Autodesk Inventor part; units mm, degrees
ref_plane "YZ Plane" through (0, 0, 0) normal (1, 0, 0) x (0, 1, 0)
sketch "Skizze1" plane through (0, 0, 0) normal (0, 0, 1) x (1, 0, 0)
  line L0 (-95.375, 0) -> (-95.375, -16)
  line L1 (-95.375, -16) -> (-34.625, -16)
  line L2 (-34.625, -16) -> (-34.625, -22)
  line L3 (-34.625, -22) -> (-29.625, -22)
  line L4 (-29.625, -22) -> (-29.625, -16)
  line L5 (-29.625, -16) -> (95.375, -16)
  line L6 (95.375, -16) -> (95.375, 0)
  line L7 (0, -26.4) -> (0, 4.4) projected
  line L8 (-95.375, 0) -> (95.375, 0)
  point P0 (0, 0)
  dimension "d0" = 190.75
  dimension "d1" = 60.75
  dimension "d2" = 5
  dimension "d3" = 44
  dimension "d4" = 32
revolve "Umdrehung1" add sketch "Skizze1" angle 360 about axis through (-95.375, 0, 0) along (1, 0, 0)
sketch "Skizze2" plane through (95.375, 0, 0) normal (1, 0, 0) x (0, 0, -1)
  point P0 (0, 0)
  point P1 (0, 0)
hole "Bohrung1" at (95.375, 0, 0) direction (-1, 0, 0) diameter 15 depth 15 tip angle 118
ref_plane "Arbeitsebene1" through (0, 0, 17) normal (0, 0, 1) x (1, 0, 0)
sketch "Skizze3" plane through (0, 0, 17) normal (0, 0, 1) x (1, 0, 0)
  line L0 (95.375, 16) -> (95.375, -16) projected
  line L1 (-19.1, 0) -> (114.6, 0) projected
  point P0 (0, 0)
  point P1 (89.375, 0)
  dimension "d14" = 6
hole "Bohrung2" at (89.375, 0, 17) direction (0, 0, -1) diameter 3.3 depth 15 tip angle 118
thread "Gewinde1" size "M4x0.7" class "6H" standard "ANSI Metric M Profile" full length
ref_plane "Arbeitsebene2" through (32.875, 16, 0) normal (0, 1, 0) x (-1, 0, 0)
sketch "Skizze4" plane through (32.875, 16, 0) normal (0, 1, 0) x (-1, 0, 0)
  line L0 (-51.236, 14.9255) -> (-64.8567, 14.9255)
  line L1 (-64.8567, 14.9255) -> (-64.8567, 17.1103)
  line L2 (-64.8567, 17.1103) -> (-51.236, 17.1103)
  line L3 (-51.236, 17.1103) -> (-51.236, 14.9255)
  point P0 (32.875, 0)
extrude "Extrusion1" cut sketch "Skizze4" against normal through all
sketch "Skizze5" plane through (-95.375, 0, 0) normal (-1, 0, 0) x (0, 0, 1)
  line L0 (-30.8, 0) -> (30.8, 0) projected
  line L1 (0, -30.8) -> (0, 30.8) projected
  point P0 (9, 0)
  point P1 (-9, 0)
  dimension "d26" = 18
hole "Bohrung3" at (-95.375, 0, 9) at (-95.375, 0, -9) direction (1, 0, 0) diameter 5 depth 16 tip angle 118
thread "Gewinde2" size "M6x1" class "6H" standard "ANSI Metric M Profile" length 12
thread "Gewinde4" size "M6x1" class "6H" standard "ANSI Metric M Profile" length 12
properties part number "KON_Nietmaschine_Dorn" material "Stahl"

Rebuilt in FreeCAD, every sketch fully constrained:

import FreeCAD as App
import Part
import Sketcher

V = App.Vector
Q = App.Units.Quantity


def add_polygon(sketch, points):
    """Adds a closed chain of lines whose ends are joined by coincident constraints."""
    first, n = sketch.GeometryCount, len(points)
    for a, b in zip(points, points[1:] + points[:1]):
        sketch.addGeometry(Part.LineSegment(App.Vector(*a, 0), App.Vector(*b, 0)), False)
    for i in range(n):
        sketch.addConstraint(Sketcher.Constraint("Coincident", first + i, 2, first + (i + 1) % n, 1))

doc = App.newDocument("Part")
body = doc.addObject("PartDesign::Body", "Body")

# Sketch on XY plane
sketch1 = body.newObject("Sketcher::SketchObject", "Sketch")
sketch1.AttachmentSupport = (doc.getObject("XY_Plane"), [""])
sketch1.MapMode = "FlatFace"
add_polygon(sketch1, [(-95, 0), (-95, -16), (-35, -16), (-35, -22), (-30, -22), (-30, -16), (95, -16), (95, 0)])  # lines 0-7
sketch1.addConstraint(Sketcher.Constraint("Vertical", 0))
sketch1.addConstraint(Sketcher.Constraint("Horizontal", 1))
sketch1.addConstraint(Sketcher.Constraint("Vertical", 2))
sketch1.addConstraint(Sketcher.Constraint("Horizontal", 3))
sketch1.addConstraint(Sketcher.Constraint("Vertical", 4))
sketch1.addConstraint(Sketcher.Constraint("Horizontal", 5))
sketch1.addConstraint(Sketcher.Constraint("Vertical", 6))
sketch1.addConstraint(Sketcher.Constraint("Horizontal", 7))
sketch1.addConstraint(Sketcher.Constraint("Symmetric", 6, 2, 7, 2, -1, 1))
sketch1.addConstraint(Sketcher.Constraint("Horizontal", 1, 2, 4, 2))
sketch1.addConstraint(Sketcher.Constraint("DistanceX", 3, 1, 3, 2, Q("5 mm")))
sketch1.addConstraint(Sketcher.Constraint("DistanceX", 1, 1, 1, 2, Q("60.75 mm")))
sketch1.addConstraint(Sketcher.Constraint("DistanceX", 7, 2, 7, 1, Q("190.75 mm")))
sketch1.addConstraint(Sketcher.Constraint("DistanceY", 0, 2, 0, 1, Q("16 mm")))
sketch1.addConstraint(Sketcher.Constraint("DistanceY", 2, 2, 2, 1, Q("6 mm")))
revolution = body.newObject("PartDesign::Revolution", "Revolution")
revolution.Profile = sketch1
revolution.ReferenceAxis = (sketch1, ["H_Axis"])
revolution.Angle = 360

# Sketch on YZ plane
sketch2 = body.newObject("Sketcher::SketchObject", "Sketch001")
sketch2.AttachmentSupport = (doc.getObject("YZ_Plane"), [""])
sketch2.MapMode = "FlatFace"
sketch2.AttachmentOffset = App.Placement(V(0, 0, 95.375), App.Rotation())
sketch2.addGeometry(Part.Circle(V(0, 0, 0), V(0, 0, 1), 8), False)
sketch2.addConstraint(Sketcher.Constraint("Coincident", 0, 3, -1, 1))
sketch2.addConstraint(Sketcher.Constraint("Diameter", 0, Q("15 mm")))
doc.recompute()
hole = body.newObject("PartDesign::Hole", "Hole")
hole.Profile = sketch2
hole.ThreadType = "None"
hole.Diameter = 15
hole.DepthType = "Dimension"
hole.Depth = 15
hole.DrillPoint = "Angled"
hole.DrillPointAngle = 118

# Sketch on XY plane
sketch3 = body.newObject("Sketcher::SketchObject", "Sketch002")
sketch3.AttachmentSupport = (doc.getObject("XY_Plane"), [""])
sketch3.MapMode = "FlatFace"
sketch3.AttachmentOffset = App.Placement(V(0, 0, 17), App.Rotation())
sketch3.addGeometry(Part.Circle(V(89.4, 0, 0), V(0, 0, 1), 1.6), False)
sketch3.addConstraint(Sketcher.Constraint("PointOnObject", 0, 3, -1))
sketch3.addConstraint(Sketcher.Constraint("Diameter", 0, Q("3.3 mm")))
sketch3.addConstraint(Sketcher.Constraint("DistanceX", -1, 1, 0, 3, Q("89.375 mm")))
doc.recompute()
hole2 = body.newObject("PartDesign::Hole", "Hole001")
hole2.Profile = sketch3
hole2.ThreadType = "None"
hole2.Diameter = 3.3
hole2.DepthType = "Dimension"
hole2.Depth = 15
hole2.DrillPoint = "Angled"
hole2.DrillPointAngle = 118

# Sketch on XZ plane
sketch4 = body.newObject("Sketcher::SketchObject", "Sketch003")
sketch4.AttachmentSupport = (doc.getObject("XZ_Plane"), [""])
sketch4.MapMode = "FlatFace"
sketch4.AttachmentOffset = App.Placement(V(0, 0, -16), App.Rotation())
add_polygon(sketch4, [(97.7, 14.9), (84.1, 14.9), (84.1, 17.1), (97.7, 17.1)])  # lines 0-3
sketch4.addConstraint(Sketcher.Constraint("Horizontal", 0))
sketch4.addConstraint(Sketcher.Constraint("Vertical", 1))
sketch4.addConstraint(Sketcher.Constraint("Horizontal", 2))
sketch4.addConstraint(Sketcher.Constraint("Vertical", 3))
sketch4.addConstraint(Sketcher.Constraint("DistanceX", 0, 2, 0, 1, Q("13.6207 mm")))
sketch4.addConstraint(Sketcher.Constraint("DistanceY", 1, 1, 1, 2, Q("2.1848 mm")))
sketch4.addConstraint(Sketcher.Constraint("DistanceX", -1, 1, 0, 2, Q("84.111 mm")))
sketch4.addConstraint(Sketcher.Constraint("DistanceY", -1, 1, 0, 2, Q("14.9255 mm")))
pocket1 = body.newObject("PartDesign::Pocket", "Pocket")
pocket1.Profile = sketch4
pocket1.Type = "ThroughAll"
pocket1.Reversed = True

# Sketch on YZ plane
sketch5 = body.newObject("Sketcher::SketchObject", "Sketch004")
sketch5.AttachmentSupport = (doc.getObject("YZ_Plane"), [""])
sketch5.MapMode = "FlatFace"
sketch5.AttachmentOffset = App.Placement(V(0, 0, -95.375), App.Rotation())
sketch5.addGeometry(Part.Circle(V(0, 9, 0), V(0, 0, 1), 2.5), False)
sketch5.addGeometry(Part.Circle(V(0, -9, 0), V(0, 0, 1), 2.5), False)
sketch5.addConstraint(Sketcher.Constraint("Equal", 0, 1))
sketch5.addConstraint(Sketcher.Constraint("Symmetric", 0, 3, 1, 3, -1, 1))
sketch5.addConstraint(Sketcher.Constraint("PointOnObject", 0, 3, -2))
sketch5.addConstraint(Sketcher.Constraint("Diameter", 0, Q("5 mm")))
sketch5.addConstraint(Sketcher.Constraint("DistanceY", -1, 1, 0, 3, Q("9 mm")))
doc.recompute()
hole3 = body.newObject("PartDesign::Hole", "Hole002")
hole3.Profile = sketch5
hole3.ThreadType = "None"
hole3.Diameter = 5
hole3.DepthType = "Dimension"
hole3.Depth = 16
hole3.DrillPoint = "Angled"
hole3.DrillPointAngle = 118
hole3.Reversed = True

doc.recompute()
